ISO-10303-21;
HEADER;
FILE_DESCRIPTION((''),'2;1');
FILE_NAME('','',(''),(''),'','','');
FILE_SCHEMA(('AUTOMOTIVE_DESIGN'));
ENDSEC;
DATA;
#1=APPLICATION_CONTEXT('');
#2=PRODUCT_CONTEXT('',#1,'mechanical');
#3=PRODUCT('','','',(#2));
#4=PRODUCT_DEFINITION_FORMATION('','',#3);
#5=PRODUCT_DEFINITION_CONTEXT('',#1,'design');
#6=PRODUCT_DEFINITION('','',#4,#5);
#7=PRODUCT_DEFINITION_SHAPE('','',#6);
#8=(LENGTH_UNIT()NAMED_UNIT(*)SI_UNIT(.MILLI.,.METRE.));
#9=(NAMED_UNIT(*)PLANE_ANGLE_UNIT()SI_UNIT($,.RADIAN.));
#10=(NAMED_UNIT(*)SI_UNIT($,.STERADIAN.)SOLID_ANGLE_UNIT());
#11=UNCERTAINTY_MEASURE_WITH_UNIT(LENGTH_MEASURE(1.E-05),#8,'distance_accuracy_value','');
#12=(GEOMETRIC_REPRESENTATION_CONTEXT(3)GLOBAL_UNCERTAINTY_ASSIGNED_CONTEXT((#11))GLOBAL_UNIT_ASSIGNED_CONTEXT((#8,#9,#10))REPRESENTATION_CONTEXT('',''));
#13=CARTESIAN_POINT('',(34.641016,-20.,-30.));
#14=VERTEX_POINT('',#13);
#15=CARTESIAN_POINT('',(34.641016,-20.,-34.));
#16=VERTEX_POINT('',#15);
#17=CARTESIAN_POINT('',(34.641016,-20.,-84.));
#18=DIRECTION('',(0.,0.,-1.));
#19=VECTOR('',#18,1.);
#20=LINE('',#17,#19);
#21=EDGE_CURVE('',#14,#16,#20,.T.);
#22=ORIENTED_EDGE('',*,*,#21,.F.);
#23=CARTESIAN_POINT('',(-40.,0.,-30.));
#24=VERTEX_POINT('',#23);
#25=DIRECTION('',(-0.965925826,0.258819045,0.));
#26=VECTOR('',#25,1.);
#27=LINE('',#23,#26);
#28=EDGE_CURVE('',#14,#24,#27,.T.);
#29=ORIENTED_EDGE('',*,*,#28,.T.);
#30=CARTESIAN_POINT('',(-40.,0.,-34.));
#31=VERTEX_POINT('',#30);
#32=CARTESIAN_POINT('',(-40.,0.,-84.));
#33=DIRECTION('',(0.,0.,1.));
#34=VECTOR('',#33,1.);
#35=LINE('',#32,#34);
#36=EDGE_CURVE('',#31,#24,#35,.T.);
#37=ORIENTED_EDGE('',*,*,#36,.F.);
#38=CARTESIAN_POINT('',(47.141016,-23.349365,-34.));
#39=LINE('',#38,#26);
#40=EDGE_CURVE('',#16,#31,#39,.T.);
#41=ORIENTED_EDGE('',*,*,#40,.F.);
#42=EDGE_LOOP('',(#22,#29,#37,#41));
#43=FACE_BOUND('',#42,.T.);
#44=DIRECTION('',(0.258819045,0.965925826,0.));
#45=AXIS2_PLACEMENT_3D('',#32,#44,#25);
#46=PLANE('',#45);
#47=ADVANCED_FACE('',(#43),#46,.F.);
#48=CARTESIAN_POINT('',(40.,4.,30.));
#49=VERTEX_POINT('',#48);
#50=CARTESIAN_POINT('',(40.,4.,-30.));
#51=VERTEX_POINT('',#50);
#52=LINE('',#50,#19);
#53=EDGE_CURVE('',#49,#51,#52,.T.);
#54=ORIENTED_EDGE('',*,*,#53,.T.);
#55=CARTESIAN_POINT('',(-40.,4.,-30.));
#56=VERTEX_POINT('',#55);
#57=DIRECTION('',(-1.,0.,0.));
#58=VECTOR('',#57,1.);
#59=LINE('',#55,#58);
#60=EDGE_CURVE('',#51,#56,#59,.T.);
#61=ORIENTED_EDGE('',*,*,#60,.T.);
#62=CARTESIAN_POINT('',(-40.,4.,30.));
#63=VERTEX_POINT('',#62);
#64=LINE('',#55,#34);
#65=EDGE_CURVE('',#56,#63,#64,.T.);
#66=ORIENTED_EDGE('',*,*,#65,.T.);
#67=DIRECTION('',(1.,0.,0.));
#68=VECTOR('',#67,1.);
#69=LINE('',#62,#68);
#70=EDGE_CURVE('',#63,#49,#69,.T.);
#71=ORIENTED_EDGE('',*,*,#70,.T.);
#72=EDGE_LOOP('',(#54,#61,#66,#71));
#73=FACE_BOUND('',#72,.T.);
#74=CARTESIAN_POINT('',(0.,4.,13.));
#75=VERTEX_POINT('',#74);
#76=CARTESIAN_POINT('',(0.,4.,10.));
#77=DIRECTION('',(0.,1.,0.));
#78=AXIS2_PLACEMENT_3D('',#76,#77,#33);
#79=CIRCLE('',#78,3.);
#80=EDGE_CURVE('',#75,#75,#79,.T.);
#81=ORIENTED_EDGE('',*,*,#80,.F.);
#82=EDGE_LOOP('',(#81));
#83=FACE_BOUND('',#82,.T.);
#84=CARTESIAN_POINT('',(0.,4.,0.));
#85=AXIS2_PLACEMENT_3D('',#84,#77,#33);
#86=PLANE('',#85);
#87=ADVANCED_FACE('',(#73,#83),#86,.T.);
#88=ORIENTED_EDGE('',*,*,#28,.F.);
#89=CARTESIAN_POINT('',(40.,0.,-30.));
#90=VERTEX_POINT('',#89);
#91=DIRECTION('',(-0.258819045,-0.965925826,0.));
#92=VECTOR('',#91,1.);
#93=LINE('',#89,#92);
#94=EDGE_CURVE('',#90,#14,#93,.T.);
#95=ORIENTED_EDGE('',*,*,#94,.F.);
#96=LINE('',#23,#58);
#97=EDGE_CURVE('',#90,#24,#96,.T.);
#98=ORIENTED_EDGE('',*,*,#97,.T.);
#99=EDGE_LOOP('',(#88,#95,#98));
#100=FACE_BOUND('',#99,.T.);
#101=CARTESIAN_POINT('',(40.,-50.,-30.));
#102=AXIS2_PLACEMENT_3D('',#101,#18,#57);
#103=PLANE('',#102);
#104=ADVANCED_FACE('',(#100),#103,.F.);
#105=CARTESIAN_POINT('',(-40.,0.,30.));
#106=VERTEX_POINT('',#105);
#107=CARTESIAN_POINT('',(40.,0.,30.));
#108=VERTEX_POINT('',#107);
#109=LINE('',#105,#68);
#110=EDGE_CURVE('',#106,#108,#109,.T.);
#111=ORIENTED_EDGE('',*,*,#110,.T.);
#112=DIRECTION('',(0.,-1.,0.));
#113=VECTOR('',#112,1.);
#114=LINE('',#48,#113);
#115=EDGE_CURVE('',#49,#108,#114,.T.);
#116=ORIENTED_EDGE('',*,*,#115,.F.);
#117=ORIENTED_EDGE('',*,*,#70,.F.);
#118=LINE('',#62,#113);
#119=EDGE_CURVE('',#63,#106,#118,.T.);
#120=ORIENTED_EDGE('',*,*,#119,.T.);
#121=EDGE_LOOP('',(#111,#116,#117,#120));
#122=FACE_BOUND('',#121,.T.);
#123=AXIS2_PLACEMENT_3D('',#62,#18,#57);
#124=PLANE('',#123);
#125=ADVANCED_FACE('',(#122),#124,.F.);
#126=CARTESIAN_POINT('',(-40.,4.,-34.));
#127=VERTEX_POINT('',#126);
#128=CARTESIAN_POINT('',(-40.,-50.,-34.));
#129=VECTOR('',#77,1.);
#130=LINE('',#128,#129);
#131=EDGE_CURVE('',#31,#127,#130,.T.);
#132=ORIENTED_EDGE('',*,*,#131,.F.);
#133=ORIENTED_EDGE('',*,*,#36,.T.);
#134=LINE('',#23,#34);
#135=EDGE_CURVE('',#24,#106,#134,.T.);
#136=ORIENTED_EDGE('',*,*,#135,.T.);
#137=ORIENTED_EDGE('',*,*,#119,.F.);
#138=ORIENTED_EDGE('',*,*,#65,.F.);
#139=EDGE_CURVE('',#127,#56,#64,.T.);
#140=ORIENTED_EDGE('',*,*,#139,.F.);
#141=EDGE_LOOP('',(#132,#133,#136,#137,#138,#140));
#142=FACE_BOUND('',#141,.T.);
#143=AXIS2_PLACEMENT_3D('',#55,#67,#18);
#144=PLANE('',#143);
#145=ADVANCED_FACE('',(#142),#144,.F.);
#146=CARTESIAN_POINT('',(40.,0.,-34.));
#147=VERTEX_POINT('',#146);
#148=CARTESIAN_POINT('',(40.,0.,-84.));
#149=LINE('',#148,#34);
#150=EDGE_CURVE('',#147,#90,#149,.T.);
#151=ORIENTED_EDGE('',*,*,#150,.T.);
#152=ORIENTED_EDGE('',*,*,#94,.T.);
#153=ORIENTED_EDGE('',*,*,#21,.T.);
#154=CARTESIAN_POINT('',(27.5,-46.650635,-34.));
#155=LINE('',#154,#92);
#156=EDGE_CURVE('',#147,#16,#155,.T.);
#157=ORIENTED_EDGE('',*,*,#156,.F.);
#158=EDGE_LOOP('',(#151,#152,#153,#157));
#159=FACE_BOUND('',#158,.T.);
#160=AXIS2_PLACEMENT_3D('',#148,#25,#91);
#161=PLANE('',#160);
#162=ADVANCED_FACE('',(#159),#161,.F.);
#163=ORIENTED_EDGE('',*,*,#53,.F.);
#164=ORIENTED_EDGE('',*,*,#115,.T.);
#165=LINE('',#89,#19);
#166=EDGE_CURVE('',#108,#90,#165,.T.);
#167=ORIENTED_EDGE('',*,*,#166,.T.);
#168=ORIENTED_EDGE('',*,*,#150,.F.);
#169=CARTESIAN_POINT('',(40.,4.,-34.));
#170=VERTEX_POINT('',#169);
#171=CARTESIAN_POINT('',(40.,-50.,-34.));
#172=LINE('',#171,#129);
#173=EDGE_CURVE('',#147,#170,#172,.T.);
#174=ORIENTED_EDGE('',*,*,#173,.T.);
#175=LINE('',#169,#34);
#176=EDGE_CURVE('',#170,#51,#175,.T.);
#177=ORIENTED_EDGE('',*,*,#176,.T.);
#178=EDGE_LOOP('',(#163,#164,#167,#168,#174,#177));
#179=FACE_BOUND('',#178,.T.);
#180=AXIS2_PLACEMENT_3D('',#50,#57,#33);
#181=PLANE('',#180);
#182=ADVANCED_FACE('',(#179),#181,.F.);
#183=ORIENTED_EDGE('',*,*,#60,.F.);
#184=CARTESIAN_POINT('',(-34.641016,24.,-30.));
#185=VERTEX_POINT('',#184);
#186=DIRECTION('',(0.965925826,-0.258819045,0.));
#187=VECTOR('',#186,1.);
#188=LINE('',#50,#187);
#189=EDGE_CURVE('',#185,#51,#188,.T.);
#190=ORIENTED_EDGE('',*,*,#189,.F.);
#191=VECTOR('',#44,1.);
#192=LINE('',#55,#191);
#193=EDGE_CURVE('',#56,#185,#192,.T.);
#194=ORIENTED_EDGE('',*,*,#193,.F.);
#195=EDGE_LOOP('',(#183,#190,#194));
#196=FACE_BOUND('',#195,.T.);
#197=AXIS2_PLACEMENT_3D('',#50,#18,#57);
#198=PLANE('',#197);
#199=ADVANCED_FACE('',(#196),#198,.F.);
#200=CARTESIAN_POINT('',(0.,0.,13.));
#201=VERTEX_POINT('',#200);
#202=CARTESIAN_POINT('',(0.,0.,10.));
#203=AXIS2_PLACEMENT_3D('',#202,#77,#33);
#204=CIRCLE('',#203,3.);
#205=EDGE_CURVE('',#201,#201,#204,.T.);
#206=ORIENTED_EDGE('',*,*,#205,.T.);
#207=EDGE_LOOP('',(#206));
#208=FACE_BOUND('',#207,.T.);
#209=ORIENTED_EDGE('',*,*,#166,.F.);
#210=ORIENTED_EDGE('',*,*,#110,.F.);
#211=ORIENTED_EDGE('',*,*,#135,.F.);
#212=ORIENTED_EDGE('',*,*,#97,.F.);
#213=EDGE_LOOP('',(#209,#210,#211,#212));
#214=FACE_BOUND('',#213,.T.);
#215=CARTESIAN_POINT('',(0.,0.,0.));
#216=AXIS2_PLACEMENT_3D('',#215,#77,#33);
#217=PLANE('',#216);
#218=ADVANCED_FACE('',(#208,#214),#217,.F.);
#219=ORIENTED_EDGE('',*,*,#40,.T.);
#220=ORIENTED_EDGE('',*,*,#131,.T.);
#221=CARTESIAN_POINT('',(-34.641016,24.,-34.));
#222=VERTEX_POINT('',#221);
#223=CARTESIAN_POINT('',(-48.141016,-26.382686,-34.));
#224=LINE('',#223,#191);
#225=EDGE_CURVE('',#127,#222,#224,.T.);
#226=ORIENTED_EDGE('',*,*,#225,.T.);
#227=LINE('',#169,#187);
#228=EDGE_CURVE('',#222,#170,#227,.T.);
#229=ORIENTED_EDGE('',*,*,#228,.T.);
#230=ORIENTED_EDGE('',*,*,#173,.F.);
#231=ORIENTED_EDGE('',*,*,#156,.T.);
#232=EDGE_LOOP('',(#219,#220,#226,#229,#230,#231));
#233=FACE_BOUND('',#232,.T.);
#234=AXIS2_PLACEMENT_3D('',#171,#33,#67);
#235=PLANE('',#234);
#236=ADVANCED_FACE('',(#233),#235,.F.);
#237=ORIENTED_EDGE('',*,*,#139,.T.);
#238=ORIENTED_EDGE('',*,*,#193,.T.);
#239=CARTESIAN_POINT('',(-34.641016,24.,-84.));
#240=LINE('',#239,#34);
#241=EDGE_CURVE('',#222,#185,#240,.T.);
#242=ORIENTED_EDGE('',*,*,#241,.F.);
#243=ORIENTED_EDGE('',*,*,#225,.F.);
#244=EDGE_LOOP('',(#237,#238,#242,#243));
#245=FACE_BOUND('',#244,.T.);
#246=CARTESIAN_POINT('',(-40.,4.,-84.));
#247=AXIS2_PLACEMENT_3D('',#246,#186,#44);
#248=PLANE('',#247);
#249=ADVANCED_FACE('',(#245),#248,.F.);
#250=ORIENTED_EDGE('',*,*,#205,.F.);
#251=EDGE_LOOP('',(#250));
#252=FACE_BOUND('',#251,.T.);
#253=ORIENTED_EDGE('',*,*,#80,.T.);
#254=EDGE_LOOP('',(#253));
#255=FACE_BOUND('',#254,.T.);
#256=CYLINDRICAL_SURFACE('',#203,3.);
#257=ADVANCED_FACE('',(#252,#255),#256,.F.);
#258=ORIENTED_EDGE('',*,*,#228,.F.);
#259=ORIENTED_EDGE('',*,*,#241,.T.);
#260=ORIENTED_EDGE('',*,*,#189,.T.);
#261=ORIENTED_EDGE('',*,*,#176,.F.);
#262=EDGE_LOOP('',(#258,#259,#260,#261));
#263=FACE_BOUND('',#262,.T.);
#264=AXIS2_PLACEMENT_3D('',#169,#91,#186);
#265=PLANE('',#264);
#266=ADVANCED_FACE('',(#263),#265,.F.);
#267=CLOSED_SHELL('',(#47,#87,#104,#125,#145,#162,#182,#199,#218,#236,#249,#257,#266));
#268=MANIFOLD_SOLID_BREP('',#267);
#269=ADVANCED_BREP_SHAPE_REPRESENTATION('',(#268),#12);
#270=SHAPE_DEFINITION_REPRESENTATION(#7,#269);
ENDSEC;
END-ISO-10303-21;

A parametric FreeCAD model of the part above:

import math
import FreeCAD as App
import Part
import Sketcher

V = App.Vector
Q = App.Units.Quantity


def add_polygon(sketch, points):
    """Adds a closed chain of lines whose ends are joined by coincident constraints."""
    first, n = sketch.GeometryCount, len(points)
    for a, b in zip(points, points[1:] + points[:1]):
        sketch.addGeometry(Part.LineSegment(App.Vector(*a, 0), App.Vector(*b, 0)), False)
    for i in range(n):
        sketch.addConstraint(Sketcher.Constraint("Coincident", first + i, 2, first + (i + 1) % n, 1))

doc = App.newDocument("Part")
params = doc.addObject("Spreadsheet::Sheet", "Params")
for row, (alias, value) in enumerate([
    ("sketch1_width", "80 mm"),
    ("sketch1_height", "60 mm"),
    ("pad1_length", "4 mm"),
    ("sketch2_diameter", "6 mm"),
    ("pocket1_length", "4 mm"),
    ("sketch3_radius", "80 mm"),
    ("pad2_length", "4 mm"),
    ("sketch4_width", "80 mm"),
    ("sketch4_height", "4 mm"),
    ("pad3_length", "54 mm"),
    ("pocket2_length", "54 mm"),
    ("pocket3_length", "54 mm"),
    ("pocket4_length", "54 mm"),
], start=1):
    params.set(f"A{row}", alias)
    params.set(f"B{row}", "=" + value)
    params.setAlias(f"B{row}", alias)

body = doc.addObject("PartDesign::Body", "Body")

# Sketch on XZ plane
sketch1 = body.newObject("Sketcher::SketchObject", "Sketch")
sketch1.AttachmentSupport = (doc.getObject("XZ_Plane"), [""])
sketch1.MapMode = "FlatFace"
add_polygon(sketch1, [(-40, -30), (-40, 30), (40, 30), (40, -30)])  # lines 0-3
sketch1.addConstraint([
    Sketcher.Constraint("Vertical", 0),
    Sketcher.Constraint("Horizontal", 1),
    Sketcher.Constraint("Vertical", 2),
    Sketcher.Constraint("Horizontal", 3),
    Sketcher.Constraint("Symmetric", 0, 2, 2, 2, -1, 1),
    Sketcher.Constraint("DistanceX", 1, 1, 1, 2, 80.0),
    Sketcher.Constraint("DistanceY", 0, 1, 0, 2, 60.0),
])
sketch1.setExpression("Constraints[9]", "Params.sketch1_width")
sketch1.setExpression("Constraints[10]", "Params.sketch1_height")
pad1 = body.newObject("PartDesign::Pad", "Pad")
pad1.Profile = sketch1
pad1.setExpression("Length", "Params.pad1_length")
pad1.Reversed = True

# Sketch on XZ plane
sketch2 = body.newObject("Sketcher::SketchObject", "Sketch001")
sketch2.AttachmentSupport = (doc.getObject("XZ_Plane"), [""])
sketch2.MapMode = "FlatFace"
sketch2.AttachmentOffset = App.Placement(V(0, 0, -4), App.Rotation())
sketch2.addGeometry(Part.Circle(V(0, 10, 0), V(0, 0, 1), 3), False)
sketch2.addConstraint([
    Sketcher.Constraint("PointOnObject", 0, 3, -2),
    Sketcher.Constraint("Diameter", 0, 6.0),
    Sketcher.Constraint("DistanceY", -1, 1, 0, 3, 10.0),
])
sketch2.setExpression("Constraints[1]", "Params.sketch2_diameter")
pocket1 = body.newObject("PartDesign::Pocket", "Pocket")
pocket1.Profile = sketch2
pocket1.setExpression("Length", "Params.pocket1_length")
pocket1.Reversed = True
body2 = doc.addObject("PartDesign::Body", "Body001")

# Sketch on XY plane
sketch3 = body2.newObject("Sketcher::SketchObject", "Sketch002")
sketch3.AttachmentSupport = (doc.getObject("XY_Plane001"), [""])
sketch3.MapMode = "FlatFace"
sketch3.AttachmentOffset = App.Placement(V(0, 0, -30), App.Rotation())
sketch3.addGeometry([
    Part.LineSegment(V(-37, 25, 0), V(40, 4, 0)),
    Part.LineSegment(V(40, 4, 0), V(-40, 4, 0)),
    Part.ArcOfCircle(Part.Circle(V(40, 4, 0), V(0, 0, 1), 80), math.radians(165), math.radians(180)),
], False)
sketch3.addConstraint([
    Sketcher.Constraint("Coincident", 0, 2, 1, 1),
    Sketcher.Constraint("Coincident", 1, 2, 2, 2),
    Sketcher.Constraint("Coincident", 2, 1, 0, 1),
    Sketcher.Constraint("Horizontal", 1),
    Sketcher.Constraint("Coincident", 0, 2, 2, 3),
    Sketcher.Constraint("Radius", 2, 80.0),
    Sketcher.Constraint("Angle", 0, Q("-15 deg")),
    Sketcher.Constraint("DistanceX", -1, 1, 2, 3, 40.0),
    Sketcher.Constraint("DistanceY", -1, 1, 2, 3, 4.0),
])
sketch3.setExpression("Constraints[5]", "Params.sketch3_radius")
pad2 = body2.newObject("PartDesign::Pad", "Pad001")
pad2.Profile = sketch3
pad2.setExpression("Length", "Params.pad2_length")
pad2.Reversed = True
body.AllowCompound = True
doc.recompute()

boolean = body.newObject("PartDesign::Boolean", "Boolean")
boolean.Type = "Fuse"
boolean.addObjects([body2])

# Sketch on XZ plane
sketch4 = body.newObject("Sketcher::SketchObject", "Sketch003")
sketch4.AttachmentSupport = (doc.getObject("XZ_Plane"), [""])
sketch4.MapMode = "FlatFace"
sketch4.AttachmentOffset = App.Placement(V(0, 0, -4), App.Rotation())
add_polygon(sketch4, [(-40, -30), (-40, -34), (40, -34), (40, -30)])  # lines 0-3
sketch4.addConstraint([
    Sketcher.Constraint("Vertical", 0),
    Sketcher.Constraint("Horizontal", 1),
    Sketcher.Constraint("Vertical", 2),
    Sketcher.Constraint("Horizontal", 3),
    Sketcher.Constraint("DistanceX", 1, 1, 1, 2, 80.0),
    Sketcher.Constraint("DistanceY", 0, 2, 0, 1, 4.0),
    Sketcher.Constraint("DistanceX", 0, 2, -1, 1, 40.0),
    Sketcher.Constraint("DistanceY", 0, 2, -1, 1, 34.0),
])
sketch4.setExpression("Constraints[8]", "Params.sketch4_width")
sketch4.setExpression("Constraints[9]", "Params.sketch4_height")
pad3 = body.newObject("PartDesign::Pad", "Pad002")
pad3.Profile = sketch4
pad3.setExpression("Length", "Params.pad3_length")

# Sketch on XY plane
sketch5 = body.newObject("Sketcher::SketchObject", "Sketch004")
sketch5.AttachmentSupport = (doc.getObject("XY_Plane"), [""])
sketch5.MapMode = "FlatFace"
sketch5.AttachmentOffset = App.Placement(V(0, 0, -30), App.Rotation())
add_polygon(sketch5, [(-40, 4), (-35, 24), (-48, 28)])  # lines 0-2
sketch5.addConstraint([
    Sketcher.Constraint("Perpendicular", 0, 1),
    Sketcher.Constraint("Angle", 0, Q("75 deg")),
    Sketcher.Constraint("DistanceY", -1, 1, 0, 2, 24.0),
    Sketcher.Constraint("DistanceX", 2, 2, -1, 1, 40.0),
    Sketcher.Constraint("DistanceY", -1, 1, 2, 2, 4.0),
    Sketcher.Constraint("DistanceX", 1, 2, -1, 1, 48.04295),
])
pocket2 = body.newObject("PartDesign::Pocket", "Pocket001")
pocket2.Profile = sketch5
pocket2.setExpression("Length", "Params.pocket2_length")

# Sketch on XY plane
sketch6 = body.newObject("Sketcher::SketchObject", "Sketch005")
sketch6.AttachmentSupport = (doc.getObject("XY_Plane"), [""])
sketch6.MapMode = "FlatFace"
sketch6.AttachmentOffset = App.Placement(V(0, 0, -30), App.Rotation())
add_polygon(sketch6, [(40, 0), (27, -50), (60, -52)])  # lines 0-2
sketch6.addConstraint([
    Sketcher.Constraint("PointOnObject", 2, 2, -1),
    Sketcher.Constraint("Angle", 0, Q("-105 deg")),
    Sketcher.Constraint("DistanceY", 0, 2, -1, 1, 50.0),
    Sketcher.Constraint("DistanceX", -1, 1, 2, 2, 40.0),
    Sketcher.Constraint("Distance", 2, 56.30293),
    Sketcher.Constraint("DistanceY", 1, 2, -1, 1, 52.474789),
])
pocket3 = body.newObject("PartDesign::Pocket", "Pocket002")
pocket3.Profile = sketch6
pocket3.setExpression("Length", "Params.pocket3_length")

# Sketch on XY plane
sketch7 = body.newObject("Sketcher::SketchObject", "Sketch006")
sketch7.AttachmentSupport = (doc.getObject("XY_Plane"), [""])
sketch7.MapMode = "FlatFace"
sketch7.AttachmentOffset = App.Placement(V(0, 0, -30), App.Rotation())
add_polygon(sketch7, [(35, -20), (-40, 0), (-68, -51), (30, -54)])  # lines 0-3
sketch7.addConstraint([
    Sketcher.Constraint("PointOnObject", 0, 2, -1),
    Sketcher.Constraint("Angle", 0, Q("165 deg")),
    Sketcher.Constraint("DistanceX", 0, 2, -1, 1, 40.0),
    Sketcher.Constraint("DistanceY", 3, 2, -1, 1, 20.0),
    Sketcher.Constraint("Distance", 3, 34.493699),
    Sketcher.Constraint("DistanceX", -1, 1, 2, 2, 30.373618),
    Sketcher.Constraint("DistanceX", 1, 2, 2, 2, 98.796362),
    Sketcher.Constraint("Distance", 1, 58.547874),
])
pocket4 = body.newObject("PartDesign::Pocket", "Pocket003")
pocket4.Profile = sketch7
pocket4.setExpression("Length", "Params.pocket4_length")

doc.recompute()
